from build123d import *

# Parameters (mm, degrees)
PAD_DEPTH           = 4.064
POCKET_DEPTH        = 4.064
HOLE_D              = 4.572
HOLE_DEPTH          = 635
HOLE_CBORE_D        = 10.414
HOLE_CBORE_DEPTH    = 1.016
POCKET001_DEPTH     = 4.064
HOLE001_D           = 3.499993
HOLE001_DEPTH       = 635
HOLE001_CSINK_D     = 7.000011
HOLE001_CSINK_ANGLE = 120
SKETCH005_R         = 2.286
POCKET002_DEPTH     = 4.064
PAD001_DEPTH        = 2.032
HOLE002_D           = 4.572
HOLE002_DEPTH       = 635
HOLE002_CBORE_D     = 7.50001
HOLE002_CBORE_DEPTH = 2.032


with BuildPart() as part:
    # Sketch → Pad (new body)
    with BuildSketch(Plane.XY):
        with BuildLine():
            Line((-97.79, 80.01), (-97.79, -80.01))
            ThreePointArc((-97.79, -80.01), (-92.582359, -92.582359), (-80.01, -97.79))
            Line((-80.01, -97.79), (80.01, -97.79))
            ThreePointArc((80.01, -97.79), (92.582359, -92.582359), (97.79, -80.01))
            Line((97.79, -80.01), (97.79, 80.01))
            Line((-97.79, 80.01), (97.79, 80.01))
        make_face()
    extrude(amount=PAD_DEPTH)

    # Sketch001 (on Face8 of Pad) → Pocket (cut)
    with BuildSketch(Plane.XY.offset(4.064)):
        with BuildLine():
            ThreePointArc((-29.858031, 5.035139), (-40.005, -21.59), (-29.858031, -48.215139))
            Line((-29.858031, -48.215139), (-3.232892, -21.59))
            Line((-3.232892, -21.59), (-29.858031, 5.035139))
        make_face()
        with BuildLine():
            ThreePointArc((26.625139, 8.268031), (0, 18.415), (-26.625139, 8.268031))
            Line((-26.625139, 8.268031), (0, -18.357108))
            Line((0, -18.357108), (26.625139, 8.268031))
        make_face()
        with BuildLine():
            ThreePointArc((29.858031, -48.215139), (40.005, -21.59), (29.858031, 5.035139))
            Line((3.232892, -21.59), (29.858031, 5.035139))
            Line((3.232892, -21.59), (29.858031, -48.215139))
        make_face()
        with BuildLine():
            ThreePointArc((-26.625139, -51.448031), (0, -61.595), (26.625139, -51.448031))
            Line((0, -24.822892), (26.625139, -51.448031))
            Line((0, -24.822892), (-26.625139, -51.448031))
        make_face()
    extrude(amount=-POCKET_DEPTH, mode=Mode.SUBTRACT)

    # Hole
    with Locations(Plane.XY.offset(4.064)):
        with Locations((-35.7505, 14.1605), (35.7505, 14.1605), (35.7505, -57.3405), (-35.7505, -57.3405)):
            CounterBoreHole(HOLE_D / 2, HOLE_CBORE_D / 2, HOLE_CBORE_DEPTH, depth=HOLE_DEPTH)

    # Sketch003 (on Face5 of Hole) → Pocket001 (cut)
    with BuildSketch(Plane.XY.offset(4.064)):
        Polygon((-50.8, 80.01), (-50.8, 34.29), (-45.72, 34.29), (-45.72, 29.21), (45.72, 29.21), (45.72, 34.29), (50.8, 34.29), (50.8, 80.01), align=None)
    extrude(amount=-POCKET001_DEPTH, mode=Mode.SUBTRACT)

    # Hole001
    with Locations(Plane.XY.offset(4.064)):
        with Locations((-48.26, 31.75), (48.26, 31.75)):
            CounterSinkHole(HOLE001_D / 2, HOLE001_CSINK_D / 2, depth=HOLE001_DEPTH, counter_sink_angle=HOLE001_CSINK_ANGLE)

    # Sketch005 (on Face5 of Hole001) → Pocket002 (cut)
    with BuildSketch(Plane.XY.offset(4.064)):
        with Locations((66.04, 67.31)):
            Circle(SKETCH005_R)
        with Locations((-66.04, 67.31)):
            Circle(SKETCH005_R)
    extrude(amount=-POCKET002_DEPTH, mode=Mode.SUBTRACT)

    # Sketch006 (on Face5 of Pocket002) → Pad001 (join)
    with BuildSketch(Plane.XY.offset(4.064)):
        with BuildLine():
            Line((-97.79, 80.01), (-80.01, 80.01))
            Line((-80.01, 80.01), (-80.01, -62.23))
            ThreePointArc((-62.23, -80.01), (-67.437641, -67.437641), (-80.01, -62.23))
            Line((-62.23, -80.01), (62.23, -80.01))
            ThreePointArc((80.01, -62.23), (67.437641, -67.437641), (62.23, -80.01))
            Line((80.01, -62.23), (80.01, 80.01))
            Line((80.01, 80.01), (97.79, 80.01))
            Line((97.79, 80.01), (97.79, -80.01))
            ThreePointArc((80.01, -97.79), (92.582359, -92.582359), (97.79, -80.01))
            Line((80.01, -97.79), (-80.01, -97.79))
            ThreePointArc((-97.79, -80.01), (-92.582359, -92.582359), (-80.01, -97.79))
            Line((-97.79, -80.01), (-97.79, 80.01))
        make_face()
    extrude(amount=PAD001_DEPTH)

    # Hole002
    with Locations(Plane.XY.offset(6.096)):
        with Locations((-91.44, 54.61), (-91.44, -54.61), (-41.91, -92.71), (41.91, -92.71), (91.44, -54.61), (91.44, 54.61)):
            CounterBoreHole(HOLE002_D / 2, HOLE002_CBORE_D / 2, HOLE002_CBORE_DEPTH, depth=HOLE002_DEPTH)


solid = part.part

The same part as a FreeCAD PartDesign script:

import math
import FreeCAD as App
import Part
import Sketcher

V = App.Vector
Q = App.Units.Quantity


def add_polygon(sketch, points):
    """Adds a closed chain of lines whose ends are joined by coincident constraints."""
    first, n = sketch.GeometryCount, len(points)
    for a, b in zip(points, points[1:] + points[:1]):
        sketch.addGeometry(Part.LineSegment(App.Vector(*a, 0), App.Vector(*b, 0)), False)
    for i in range(n):
        sketch.addConstraint(Sketcher.Constraint("Coincident", first + i, 2, first + (i + 1) % n, 1))

doc = App.newDocument("Part")
body = doc.addObject("PartDesign::Body", "Body")

# Sketch on XY plane
sketch1 = doc.addObject("Sketcher::SketchObject", "Sketch")
body.addObject(sketch1)
sketch1.AttachmentSupport = (doc.XY_Plane, [""])
sketch1.MapMode = "FlatFace"
sketch1.addGeometry([
    Part.LineSegment(V(-97.79, 80.01, 0), V(-97.79, -80.01, 0)),  # 0
    Part.ArcOfCircle(Part.Circle(V(-80.010001, -80.010001, 0), V(0, 0, 1), 17.779999), math.radians(179.999995), math.radians(270.000005)),  # 1
    Part.LineSegment(V(-80.01, -97.79, 0), V(80.01, -97.79, 0)),  # 2
    Part.ArcOfCircle(Part.Circle(V(80.010001, -80.010001, 0), V(0, 0, 1), 17.779999), math.radians(-90.000005), math.radians(0.000005)),  # 3
    Part.LineSegment(V(97.79, -80.01, 0), V(97.79, 80.01, 0)),  # 4
    Part.LineSegment(V(97.79, 80.01, 0), V(-97.79, 80.01, 0)),  # 5
], False)
sketch1.addConstraint([
    Sketcher.Constraint("Tangent", 0, 2, 1, 1),
    Sketcher.Constraint("Tangent", 1, 2, 2, 1),
    Sketcher.Constraint("Tangent", 2, 2, 3, 1),
    Sketcher.Constraint("Tangent", 3, 2, 4, 1),
    Sketcher.Constraint("Coincident", 4, 2, 5, 1),
    Sketcher.Constraint("Coincident", 5, 2, 0, 1),
    Sketcher.Constraint("Vertical", 0),
    Sketcher.Constraint("Horizontal", 2),
    Sketcher.Constraint("Vertical", 4),
    Sketcher.Constraint("Horizontal", 5),
    Sketcher.Constraint("Equal", 1, 3),
    Sketcher.Constraint("Symmetric", 0, 2, 4, 2, -1, 1),
    Sketcher.Constraint("Equal", 2, 0),
    Sketcher.Constraint("Radius", 1, Q("0.6999999 in")),
    Sketcher.Constraint("DistanceX", 2, 1, 2, 2, Q("6.3 in")),
])
pad1 = doc.addObject("PartDesign::Pad", "Pad")
body.addObject(pad1)
pad1.Profile = sketch1
pad1.Length = Q("0.16 in")

# Sketch on XY plane
sketch2 = doc.addObject("Sketcher::SketchObject", "Sketch001")
body.addObject(sketch2)
sketch2.AttachmentSupport = (doc.XY_Plane, [""])
sketch2.MapMode = "FlatFace"
sketch2.AttachmentOffset = App.Placement(V(0, 0, 0.16 * 25.4), App.Rotation())
sketch2.addGeometry([
    Part.ArcOfCircle(Part.Circle(V(0.000001, -21.59, 0), V(0, 0, 1), 40.005001), math.radians(138.27583), math.radians(221.72417)),  # 0
    Part.LineSegment(V(-29.858031, -48.215139, 0), V(-3.232892, -21.59, 0)),  # 1
    Part.LineSegment(V(-3.232892, -21.59, 0), V(-29.858031, 5.035139, 0)),  # 2
    Part.ArcOfCircle(Part.Circle(V(0, -21.590001, 0), V(0, 0, 1), 40.005001), math.radians(48.27583), math.radians(131.72417)),  # 3
    Part.LineSegment(V(-26.625139, 8.268031, 0), V(0, -18.357108, 0)),  # 4
    Part.LineSegment(V(0, -18.357108, 0), V(26.625139, 8.268031, 0)),  # 5
    Part.ArcOfCircle(Part.Circle(V(-0.000001, -21.59, 0), V(0, 0, 1), 40.005001), math.radians(-41.72417), math.radians(41.72417)),  # 6
    Part.LineSegment(V(29.858031, 5.035139, 0), V(3.232892, -21.59, 0)),  # 7
    Part.LineSegment(V(3.232892, -21.59, 0), V(29.858031, -48.215139, 0)),  # 8
    Part.ArcOfCircle(Part.Circle(V(0, -21.589999, 0), V(0, 0, 1), 40.005001), math.radians(-131.72417), math.radians(-48.27583)),  # 9
    Part.LineSegment(V(26.625139, -51.448031, 0), V(0, -24.822892, 0)),  # 10
    Part.LineSegment(V(0, -24.822892, 0), V(-26.625139, -51.448031, 0)),  # 11
], False)
sketch2.addConstraint([
    Sketcher.Constraint("Coincident", 0, 2, 1, 1),
    Sketcher.Constraint("Coincident", 1, 2, 2, 1),
    Sketcher.Constraint("Coincident", 2, 2, 0, 1),
    Sketcher.Constraint("Coincident", 3, 2, 4, 1),
    Sketcher.Constraint("Coincident", 4, 2, 5, 1),
    Sketcher.Constraint("Coincident", 5, 2, 3, 1),
    Sketcher.Constraint("Coincident", 6, 2, 7, 1),
    Sketcher.Constraint("Coincident", 7, 2, 8, 1),
    Sketcher.Constraint("Coincident", 8, 2, 6, 1),
    Sketcher.Constraint("Coincident", 9, 2, 10, 1),
    Sketcher.Constraint("Coincident", 10, 2, 11, 1),
    Sketcher.Constraint("Coincident", 11, 2, 9, 1),
    Sketcher.Constraint("Coincident", 3, 3, 0, 3),
    Sketcher.Constraint("Coincident", 6, 3, 0, 3),
    Sketcher.Constraint("Coincident", 9, 3, 0, 3),
    Sketcher.Constraint("Equal", 0, 3),
    Sketcher.Constraint("Equal", 3, 6),
    Sketcher.Constraint("Equal", 6, 9),
    Sketcher.Constraint("Symmetric", 3, 2, 5, 2, -2),
    Sketcher.Constraint("Symmetric", 1, 2, 7, 2, -2),
    Sketcher.Constraint("PointOnObject", 4, 2, -2),
    Sketcher.Constraint("PointOnObject", 10, 2, -2),
    Sketcher.Constraint("Perpendicular", 1, 2),
    Sketcher.Constraint("Parallel", 2, 4),
    Sketcher.Constraint("Perpendicular", 4, 5),
    Sketcher.Constraint("Parallel", 5, 7),
    Sketcher.Constraint("Perpendicular", 7, 8),
    Sketcher.Constraint("Parallel", 8, 10),
    Sketcher.Constraint("Perpendicular", 10, 11),
    Sketcher.Constraint("Horizontal", 9, 3, 1, 2),
    Sketcher.Constraint("Vertical", 5, 2, 9, 2),
    Sketcher.Constraint("Equal", 2, 4),
    Sketcher.Constraint("Radius", 0, Q("1.575 in")),
    Sketcher.Constraint("DistanceY", 0, 3, -1, 1, Q("0.85 in")),
    Sketcher.Constraint("DistanceX", 0, 2, -1, 1, Q("29.858031 mm")),
])
pocket1 = doc.addObject("PartDesign::Pocket", "Pocket")
body.addObject(pocket1)
pocket1.Profile = sketch2
pocket1.Length = Q("0.16 in")

# Sketch on XY plane
sketch3 = doc.addObject("Sketcher::SketchObject", "Sketch002")
body.addObject(sketch3)
sketch3.AttachmentSupport = (doc.XY_Plane, [""])
sketch3.MapMode = "FlatFace"
sketch3.AttachmentOffset = App.Placement(V(0, 0, 0.16 * 25.4), App.Rotation())
sketch3.addGeometry([
    Part.Circle(V(-35.7505, 14.1605, 0), V(0, 0, 1), 2.286),
    Part.Circle(V(35.7505, 14.1605, 0), V(0, 0, 1), 2.286),
    Part.Circle(V(35.7505, -57.3405, 0), V(0, 0, 1), 2.286),
    Part.Circle(V(-35.7505, -57.3405, 0), V(0, 0, 1), 2.286),
], False)
sketch3.addConstraint([
    Sketcher.Constraint("Equal", 0, 1),
    Sketcher.Constraint("Equal", 1, 2),
    Sketcher.Constraint("Equal", 2, 3),
    Sketcher.Constraint("Symmetric", 0, 3, 1, 3, -2),
    Sketcher.Constraint("Symmetric", 2, 3, 3, 3, -2),
    Sketcher.Constraint("Vertical", 1, 3, 2, 3),
    Sketcher.Constraint("Diameter", 0, Q("0.18 in")),
    Sketcher.Constraint("DistanceX", 0, 3, 1, 3, Q("2.815 in")),
    Sketcher.Constraint("DistanceY", 2, 3, 1, 3, Q("2.815 in")),
    Sketcher.Constraint("DistanceY", -1, 1, 0, 3, Q("0.5575 in")),
])
doc.recompute()
hole = doc.addObject("PartDesign::Hole", "Hole")
body.addObject(hole)
hole.Profile = sketch3
hole.ThreadType = "None"
hole.Diameter = Q("0.18 in")
hole.DepthType = "Dimension"
hole.Depth = Q("25 in")
hole.DrillPoint = "Flat"
hole.HoleCutType = "Counterbore"
hole.HoleCutDiameter = Q("0.41 in")
hole.HoleCutDepth = Q("0.04 in")

# Sketch on XY plane
sketch4 = doc.addObject("Sketcher::SketchObject", "Sketch003")
body.addObject(sketch4)
sketch4.AttachmentSupport = (doc.XY_Plane, [""])
sketch4.MapMode = "FlatFace"
sketch4.AttachmentOffset = App.Placement(V(0, 0, 0.16 * 25.4), App.Rotation())
add_polygon(sketch4, [(-50.8, 80.01), (-50.8, 34.29), (-45.72, 34.29), (-45.72, 29.21), (45.72, 29.21), (45.72, 34.29), (50.8, 34.29), (50.8, 80.01)])  # lines 0-7
sketch4.addConstraint([
    Sketcher.Constraint("Vertical", 0),
    Sketcher.Constraint("Horizontal", 1),
    Sketcher.Constraint("Vertical", 2),
    Sketcher.Constraint("Horizontal", 3),
    Sketcher.Constraint("Vertical", 4),
    Sketcher.Constraint("Horizontal", 5),
    Sketcher.Constraint("Vertical", 6),
    Sketcher.Constraint("Horizontal", 7),
    Sketcher.Constraint("Symmetric", 1, 2, 4, 2, -2),
    Sketcher.Constraint("Equal", 1, 5),
    Sketcher.Constraint("Equal", 5, 2),
    Sketcher.Constraint("DistanceX", 7, 2, 7, 1, Q("4 in")),
    Sketcher.Constraint("DistanceX", 1, 1, 1, 2, Q("0.2 in")),
    Sketcher.Constraint("DistanceY", 0, 2, 0, 1, Q("1.8 in")),
    Sketcher.Constraint("DistanceY", -1, 1, 0, 2, Q("1.35 in")),
])
pocket2 = doc.addObject("PartDesign::Pocket", "Pocket001")
body.addObject(pocket2)
pocket2.Profile = sketch4
pocket2.Length = Q("0.16 in")

# Sketch on XY plane
sketch5 = doc.addObject("Sketcher::SketchObject", "Sketch004")
body.addObject(sketch5)
sketch5.AttachmentSupport = (doc.XY_Plane, [""])
sketch5.MapMode = "FlatFace"
sketch5.AttachmentOffset = App.Placement(V(0, 0, 0.16 * 25.4), App.Rotation())
sketch5.addGeometry([
    Part.Circle(V(-48.26, 31.75, 0), V(0, 0, 1), 1.749996),
    Part.Circle(V(48.26, 31.75, 0), V(0, 0, 1), 1.749996),
], False)
sketch5.addConstraint([
    Sketcher.Constraint("Equal", 0, 1),
    Sketcher.Constraint("Symmetric", 0, 3, 1, 3, -2),
    Sketcher.Constraint("DistanceX", 0, 3, -1, 1, Q("1.9 in")),
    Sketcher.Constraint("DistanceY", -1, 1, 0, 3, Q("1.25 in")),
    Sketcher.Constraint("Diameter", 0, Q("3.499993 mm")),
])
doc.recompute()
hole2 = doc.addObject("PartDesign::Hole", "Hole001")
body.addObject(hole2)
hole2.Profile = sketch5
hole2.ThreadType = "None"
hole2.Diameter = 3.499993
hole2.DepthType = "Dimension"
hole2.Depth = Q("25 in")
hole2.DrillPoint = "Flat"
hole2.HoleCutType = "Countersink"
hole2.HoleCutDiameter = 7.000011
hole2.HoleCutCountersinkAngle = 120

# Sketch on XY plane
sketch6 = doc.addObject("Sketcher::SketchObject", "Sketch005")
body.addObject(sketch6)
sketch6.AttachmentSupport = (doc.XY_Plane, [""])
sketch6.MapMode = "FlatFace"
sketch6.AttachmentOffset = App.Placement(V(0, 0, 0.16 * 25.4), App.Rotation())
sketch6.addGeometry([
    Part.Circle(V(66.04, 67.31, 0), V(0, 0, 1), 2.286),
    Part.Circle(V(-66.04, 67.31, 0), V(0, 0, 1), 2.286),
], False)
sketch6.addConstraint([
    Sketcher.Constraint("Equal", 0, 1),
    Sketcher.Constraint("Symmetric", 0, 3, 1, 3, -2),
    Sketcher.Constraint("Diameter", 0, Q("0.18 in")),
    Sketcher.Constraint("DistanceX", -1, 1, 0, 3, Q("2.6 in")),
    Sketcher.Constraint("DistanceY", -1, 1, 0, 3, Q("2.65 in")),
])
pocket3 = doc.addObject("PartDesign::Pocket", "Pocket002")
body.addObject(pocket3)
pocket3.Profile = sketch6
pocket3.Length = Q("0.16 in")

# Sketch on XY plane
sketch7 = doc.addObject("Sketcher::SketchObject", "Sketch006")
body.addObject(sketch7)
sketch7.AttachmentSupport = (doc.XY_Plane, [""])
sketch7.MapMode = "FlatFace"
sketch7.AttachmentOffset = App.Placement(V(0, 0, 0.16 * 25.4), App.Rotation())
sketch7.addGeometry([
    Part.LineSegment(V(-80.01, 80.01, 0), V(-97.79, 80.01, 0)),  # 0
    Part.LineSegment(V(-97.79, 80.01, 0), V(-97.79, -80.01, 0)),  # 1
    Part.ArcOfCircle(Part.Circle(V(-80.010001, -80.010001, 0), V(0, 0, 1), 17.779999), math.radians(179.999995), math.radians(270.000005)),  # 2
    Part.LineSegment(V(-80.01, -97.79, 0), V(80.01, -97.79, 0)),  # 3
    Part.ArcOfCircle(Part.Circle(V(80.010001, -80.010001, 0), V(0, 0, 1), 17.779999), math.radians(-90.000005), math.radians(0.000005)),  # 4
    Part.LineSegment(V(97.79, -80.01, 0), V(97.79, 80.01, 0)),  # 5
    Part.LineSegment(V(97.79, 80.01, 0), V(80.01, 80.01, 0)),  # 6
    Part.LineSegment(V(80.01, 80.01, 0), V(80.01, -62.23, 0)),  # 7
    Part.ArcOfCircle(Part.Circle(V(80.009999, -80.009999, 0), V(0, 0, 1), 17.779999), math.radians(89.999995), math.radians(180.000005)),  # 8
    Part.LineSegment(V(62.23, -80.01, 0), V(-62.23, -80.01, 0)),  # 9
    Part.ArcOfCircle(Part.Circle(V(-80.009999, -80.009999, 0), V(0, 0, 1), 17.779999), math.radians(-0.000005), math.radians(90.000005)),  # 10
    Part.LineSegment(V(-80.01, -62.23, 0), V(-80.01, 80.01, 0)),  # 11
], False)
sketch7.addConstraint([
    Sketcher.Constraint("Coincident", 0, 2, 1, 1),
    Sketcher.Constraint("Tangent", 1, 2, 2, 1),
    Sketcher.Constraint("Tangent", 2, 2, 3, 1),
    Sketcher.Constraint("Tangent", 3, 2, 4, 1),
    Sketcher.Constraint("Tangent", 4, 2, 5, 1),
    Sketcher.Constraint("Coincident", 5, 2, 6, 1),
    Sketcher.Constraint("Coincident", 6, 2, 7, 1),
    Sketcher.Constraint("Coincident", 7, 2, 8, 1),
    Sketcher.Constraint("Coincident", 8, 2, 9, 1),
    Sketcher.Constraint("Coincident", 9, 2, 10, 1),
    Sketcher.Constraint("Coincident", 10, 2, 11, 1),
    Sketcher.Constraint("Coincident", 11, 2, 0, 1),
    Sketcher.Constraint("Horizontal", 0),
    Sketcher.Constraint("Vertical", 1),
    Sketcher.Constraint("Horizontal", 3),
    Sketcher.Constraint("Vertical", 5),
    Sketcher.Constraint("Horizontal", 6),
    Sketcher.Constraint("Vertical", 7),
    Sketcher.Constraint("Horizontal", 9),
    Sketcher.Constraint("Vertical", 11),
    Sketcher.Constraint("Coincident", 8, 3, 4, 3),
    Sketcher.Constraint("Coincident", 10, 3, 2, 3),
    Sketcher.Constraint("Equal", 2, 4),
    Sketcher.Constraint("Equal", 4, 8),
    Sketcher.Constraint("Equal", 8, 10),
    Sketcher.Constraint("Symmetric", 0, 2, 4, 2, -1, 1),
    Sketcher.Constraint("Symmetric", 6, 2, 11, 2, -2),
    Sketcher.Constraint("Horizontal", 4, 2, 8, 2),
    Sketcher.Constraint("Vertical", 3, 2, 6, 2),
    Sketcher.Constraint("Equal", 3, 1),
    Sketcher.Constraint("Radius", 2, Q("0.6999999 in")),
    Sketcher.Constraint("DistanceX", 3, 1, 3, 2, Q("6.3 in")),
])
pad2 = doc.addObject("PartDesign::Pad", "Pad001")
body.addObject(pad2)
pad2.Profile = sketch7
pad2.Length = Q("0.08 in")

# Sketch on XY plane
sketch8 = doc.addObject("Sketcher::SketchObject", "Sketch007")
body.addObject(sketch8)
sketch8.AttachmentSupport = (doc.XY_Plane, [""])
sketch8.MapMode = "FlatFace"
sketch8.AttachmentOffset = App.Placement(V(0, 0, 0.24 * 25.4), App.Rotation())
sketch8.addGeometry([
    Part.Circle(V(-91.44, 54.61, 0), V(0, 0, 1), 2.286),  # 0
    Part.Circle(V(-91.44, -54.61, 0), V(0, 0, 1), 2.286),  # 1
    Part.Circle(V(-41.91, -92.71, 0), V(0, 0, 1), 2.286),  # 2
    Part.Circle(V(41.91, -92.71, 0), V(0, 0, 1), 2.286),  # 3
    Part.Circle(V(91.44, -54.61, 0), V(0, 0, 1), 2.286),  # 4
    Part.Circle(V(91.44, 54.61, 0), V(0, 0, 1), 2.286),  # 5
], False)
sketch8.addConstraint([
    Sketcher.Constraint("Equal", 0, 1),
    Sketcher.Constraint("Equal", 1, 2),
    Sketcher.Constraint("Equal", 2, 3),
    Sketcher.Constraint("Equal", 3, 4),
    Sketcher.Constraint("Equal", 4, 5),
    Sketcher.Constraint("Symmetric", 0, 3, 4, 3, -1, 1),
    Sketcher.Constraint("Symmetric", 1, 3, 5, 3, -1, 1),
    Sketcher.Constraint("Symmetric", 2, 3, 3, 3, -2),
    Sketcher.Constraint("Symmetric", 1, 3, 4, 3, -2),
    Sketcher.Constraint("Diameter", 0, Q("0.18 in")),
    Sketcher.Constraint("DistanceX", 0, 3, -1, 1, Q("3.6 in")),
    Sketcher.Constraint("DistanceY", 1, 3, 0, 3, Q("4.3 in")),
    Sketcher.Constraint("DistanceY", 2, 3, 1, 3, Q("1.5 in")),
    Sketcher.Constraint("DistanceX", 2, 3, 3, 3, Q("3.3 in")),
])
doc.recompute()
hole3 = doc.addObject("PartDesign::Hole", "Hole002")
body.addObject(hole3)
hole3.Profile = sketch8
hole3.ThreadType = "None"
hole3.Diameter = Q("0.18 in")
hole3.DepthType = "Dimension"
hole3.Depth = Q("25 in")
hole3.DrillPoint = "Flat"
hole3.HoleCutType = "Counterbore"
hole3.HoleCutDiameter = 7.50001
hole3.HoleCutDepth = Q("0.08 in")

doc.recompute()
